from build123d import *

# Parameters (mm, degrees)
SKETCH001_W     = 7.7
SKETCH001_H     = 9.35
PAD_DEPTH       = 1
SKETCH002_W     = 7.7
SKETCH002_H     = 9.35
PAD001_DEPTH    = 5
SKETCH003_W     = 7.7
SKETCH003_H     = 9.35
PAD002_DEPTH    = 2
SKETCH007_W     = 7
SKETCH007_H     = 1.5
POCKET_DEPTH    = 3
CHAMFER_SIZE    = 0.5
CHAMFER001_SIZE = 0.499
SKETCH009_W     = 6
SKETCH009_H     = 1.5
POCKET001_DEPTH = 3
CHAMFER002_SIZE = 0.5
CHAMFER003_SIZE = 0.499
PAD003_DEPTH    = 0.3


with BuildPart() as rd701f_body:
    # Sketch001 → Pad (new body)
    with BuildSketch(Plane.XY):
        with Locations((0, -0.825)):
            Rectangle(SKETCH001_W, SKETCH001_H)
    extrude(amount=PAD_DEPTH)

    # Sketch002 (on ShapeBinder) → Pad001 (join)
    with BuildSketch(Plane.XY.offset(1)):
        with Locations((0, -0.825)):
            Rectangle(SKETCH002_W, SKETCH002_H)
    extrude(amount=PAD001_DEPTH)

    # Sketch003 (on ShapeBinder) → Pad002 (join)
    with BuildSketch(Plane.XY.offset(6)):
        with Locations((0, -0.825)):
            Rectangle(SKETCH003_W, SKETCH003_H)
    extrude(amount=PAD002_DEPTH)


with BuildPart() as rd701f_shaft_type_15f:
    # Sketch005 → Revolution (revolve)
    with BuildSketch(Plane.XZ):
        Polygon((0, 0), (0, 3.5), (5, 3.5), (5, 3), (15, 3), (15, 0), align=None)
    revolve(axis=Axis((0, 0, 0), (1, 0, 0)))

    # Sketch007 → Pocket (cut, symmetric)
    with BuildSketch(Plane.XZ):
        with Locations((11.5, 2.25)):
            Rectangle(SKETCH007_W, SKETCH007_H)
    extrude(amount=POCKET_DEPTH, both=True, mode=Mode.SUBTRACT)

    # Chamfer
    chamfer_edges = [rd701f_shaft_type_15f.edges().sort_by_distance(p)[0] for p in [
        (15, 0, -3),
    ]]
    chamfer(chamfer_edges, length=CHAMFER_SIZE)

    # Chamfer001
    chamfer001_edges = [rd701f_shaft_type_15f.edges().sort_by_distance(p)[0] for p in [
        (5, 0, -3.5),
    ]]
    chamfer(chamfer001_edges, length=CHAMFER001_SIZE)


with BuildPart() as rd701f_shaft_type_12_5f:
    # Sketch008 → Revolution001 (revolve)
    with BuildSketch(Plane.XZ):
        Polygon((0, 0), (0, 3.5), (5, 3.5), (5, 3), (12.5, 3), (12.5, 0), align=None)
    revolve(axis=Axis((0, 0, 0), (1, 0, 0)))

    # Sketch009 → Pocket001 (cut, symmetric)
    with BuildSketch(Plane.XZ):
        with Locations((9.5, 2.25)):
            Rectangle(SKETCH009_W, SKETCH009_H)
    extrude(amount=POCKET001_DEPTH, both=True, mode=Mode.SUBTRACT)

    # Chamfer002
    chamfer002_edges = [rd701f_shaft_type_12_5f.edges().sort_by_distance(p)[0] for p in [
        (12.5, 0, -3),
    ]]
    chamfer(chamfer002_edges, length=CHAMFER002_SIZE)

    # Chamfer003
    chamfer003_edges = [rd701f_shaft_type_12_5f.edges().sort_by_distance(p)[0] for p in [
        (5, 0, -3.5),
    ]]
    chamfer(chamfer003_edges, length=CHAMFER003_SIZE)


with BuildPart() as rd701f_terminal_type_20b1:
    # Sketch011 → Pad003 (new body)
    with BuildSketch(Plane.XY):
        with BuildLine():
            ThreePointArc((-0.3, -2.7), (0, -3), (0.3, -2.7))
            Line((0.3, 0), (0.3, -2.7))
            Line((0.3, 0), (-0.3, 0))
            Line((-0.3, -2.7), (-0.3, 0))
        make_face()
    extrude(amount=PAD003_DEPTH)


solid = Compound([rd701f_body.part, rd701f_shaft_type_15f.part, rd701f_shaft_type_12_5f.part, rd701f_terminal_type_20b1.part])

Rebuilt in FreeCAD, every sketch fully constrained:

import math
import FreeCAD as App
import Part
import Sketcher


def edges_at(feature, points):
    """Names of the edges that pass closest to the given points."""
    edges = feature.Shape.Edges
    near = lambda p: min(range(len(edges)), key=lambda i: edges[i].distToShape(Part.Vertex(*p))[0])
    return sorted({f"Edge{near(p) + 1}" for p in points})

doc = App.newDocument("Part")
body = doc.addObject("PartDesign::Body", "Body")

sketch1 = body.newObject("Sketcher::SketchObject", "Sketch")
sketch1.AttachmentSupport = (doc.getObject("XY_Plane"), [""])
sketch1.MapMode = "FlatFace"
sketch1.addGeometry(Part.LineSegment(App.Vector(-4, 4, 0), App.Vector(-4, -6, 0)), False)
sketch1.addGeometry(Part.LineSegment(App.Vector(-4, -6, 0), App.Vector(4, -6, 0)), False)
sketch1.addGeometry(Part.LineSegment(App.Vector(4, -6, 0), App.Vector(4, 4, 0)), False)
sketch1.addGeometry(Part.LineSegment(App.Vector(4, 4, 0), App.Vector(-4, 4, 0)), False)
sketch1.addConstraint(Sketcher.Constraint("Coincident", 0, 2, 1, 1))
sketch1.addConstraint(Sketcher.Constraint("Coincident", 1, 2, 2, 1))
sketch1.addConstraint(Sketcher.Constraint("Coincident", 2, 2, 3, 1))
sketch1.addConstraint(Sketcher.Constraint("Coincident", 3, 2, 0, 1))
sketch1.addConstraint(Sketcher.Constraint("Vertical", 0))
sketch1.addConstraint(Sketcher.Constraint("Horizontal", 1))
sketch1.addConstraint(Sketcher.Constraint("Vertical", 2))
sketch1.addConstraint(Sketcher.Constraint("Horizontal", 3))
sketch1.addConstraint(Sketcher.Constraint("DistanceX", 1, 1, 1, 2, 7.7))
sketch1.addConstraint(Sketcher.Constraint("DistanceY", 0, 2, 0, 1, 9.35))
sketch1.addConstraint(Sketcher.Constraint("DistanceY", 0, 2, -1, 1, 5.5))
sketch1.addConstraint(Sketcher.Constraint("DistanceX", 0, 2, -1, 1, 3.85))
pad1 = body.newObject("PartDesign::Pad", "Pad")
pad1.Profile = sketch1
pad1.Length = 1

sketch2 = body.newObject("Sketcher::SketchObject", "Sketch001")
sketch2.AttachmentSupport = (doc.getObject("XY_Plane"), [""])
sketch2.MapMode = "FlatFace"
sketch2.AttachmentOffset = App.Placement(App.Vector(0, 0, 1), App.Rotation())
sketch2.addGeometry(Part.LineSegment(App.Vector(-4, 4, 0), App.Vector(-4, -6, 0)), False)
sketch2.addGeometry(Part.LineSegment(App.Vector(-4, -6, 0), App.Vector(4, -6, 0)), False)
sketch2.addGeometry(Part.LineSegment(App.Vector(4, -6, 0), App.Vector(4, 4, 0)), False)
sketch2.addGeometry(Part.LineSegment(App.Vector(4, 4, 0), App.Vector(-4, 4, 0)), False)
sketch2.addConstraint(Sketcher.Constraint("Coincident", 0, 2, 1, 1))
sketch2.addConstraint(Sketcher.Constraint("Coincident", 1, 2, 2, 1))
sketch2.addConstraint(Sketcher.Constraint("Coincident", 2, 2, 3, 1))
sketch2.addConstraint(Sketcher.Constraint("Coincident", 3, 2, 0, 1))
sketch2.addConstraint(Sketcher.Constraint("Vertical", 0))
sketch2.addConstraint(Sketcher.Constraint("Horizontal", 1))
sketch2.addConstraint(Sketcher.Constraint("Vertical", 2))
sketch2.addConstraint(Sketcher.Constraint("Horizontal", 3))
sketch2.addConstraint(Sketcher.Constraint("DistanceX", 1, 1, 1, 2, 7.7))
sketch2.addConstraint(Sketcher.Constraint("DistanceY", 0, 2, 0, 1, 9.35))
sketch2.addConstraint(Sketcher.Constraint("DistanceY", 0, 2, -1, 1, 5.5))
sketch2.addConstraint(Sketcher.Constraint("DistanceX", 0, 2, -1, 1, 3.85))
pad2 = body.newObject("PartDesign::Pad", "Pad001")
pad2.Profile = sketch2
pad2.Length = 5

sketch3 = body.newObject("Sketcher::SketchObject", "Sketch002")
sketch3.AttachmentSupport = (doc.getObject("XY_Plane"), [""])
sketch3.MapMode = "FlatFace"
sketch3.AttachmentOffset = App.Placement(App.Vector(0, 0, 6), App.Rotation())
sketch3.addGeometry(Part.LineSegment(App.Vector(-4, 4, 0), App.Vector(-4, -6, 0)), False)
sketch3.addGeometry(Part.LineSegment(App.Vector(-4, -6, 0), App.Vector(4, -6, 0)), False)
sketch3.addGeometry(Part.LineSegment(App.Vector(4, -6, 0), App.Vector(4, 4, 0)), False)
sketch3.addGeometry(Part.LineSegment(App.Vector(4, 4, 0), App.Vector(-4, 4, 0)), False)
sketch3.addConstraint(Sketcher.Constraint("Coincident", 0, 2, 1, 1))
sketch3.addConstraint(Sketcher.Constraint("Coincident", 1, 2, 2, 1))
sketch3.addConstraint(Sketcher.Constraint("Coincident", 2, 2, 3, 1))
sketch3.addConstraint(Sketcher.Constraint("Coincident", 3, 2, 0, 1))
sketch3.addConstraint(Sketcher.Constraint("Vertical", 0))
sketch3.addConstraint(Sketcher.Constraint("Horizontal", 1))
sketch3.addConstraint(Sketcher.Constraint("Vertical", 2))
sketch3.addConstraint(Sketcher.Constraint("Horizontal", 3))
sketch3.addConstraint(Sketcher.Constraint("DistanceX", 1, 1, 1, 2, 7.7))
sketch3.addConstraint(Sketcher.Constraint("DistanceY", 0, 2, 0, 1, 9.35))
sketch3.addConstraint(Sketcher.Constraint("DistanceY", 0, 2, -1, 1, 5.5))
sketch3.addConstraint(Sketcher.Constraint("DistanceX", 0, 2, -1, 1, 3.85))
pad3 = body.newObject("PartDesign::Pad", "Pad002")
pad3.Profile = sketch3
pad3.Length = 2
body2 = doc.addObject("PartDesign::Body", "Body001")

sketch4 = body2.newObject("Sketcher::SketchObject", "Sketch003")
sketch4.AttachmentSupport = (doc.getObject("XZ_Plane001"), [""])
sketch4.MapMode = "FlatFace"
sketch4.addGeometry(Part.LineSegment(App.Vector(0, 3.5, 0), App.Vector(0, 0, 0)), False)
sketch4.addGeometry(Part.LineSegment(App.Vector(0, 0, 0), App.Vector(15, 0, 0)), False)
sketch4.addGeometry(Part.LineSegment(App.Vector(15, 0, 0), App.Vector(15, 3, 0)), False)
sketch4.addGeometry(Part.LineSegment(App.Vector(15, 3, 0), App.Vector(5, 3, 0)), False)
sketch4.addGeometry(Part.LineSegment(App.Vector(5, 3, 0), App.Vector(5, 3.5, 0)), False)
sketch4.addGeometry(Part.LineSegment(App.Vector(5, 3.5, 0), App.Vector(0, 3.5, 0)), False)
sketch4.addConstraint(Sketcher.Constraint("Coincident", 0, 2, 1, 1))
sketch4.addConstraint(Sketcher.Constraint("Coincident", 1, 2, 2, 1))
sketch4.addConstraint(Sketcher.Constraint("Coincident", 2, 2, 3, 1))
sketch4.addConstraint(Sketcher.Constraint("Coincident", 3, 2, 4, 1))
sketch4.addConstraint(Sketcher.Constraint("Coincident", 4, 2, 5, 1))
sketch4.addConstraint(Sketcher.Constraint("Coincident", 5, 2, 0, 1))
sketch4.addConstraint(Sketcher.Constraint("Vertical", 0))
sketch4.addConstraint(Sketcher.Constraint("Horizontal", 1))
sketch4.addConstraint(Sketcher.Constraint("Vertical", 2))
sketch4.addConstraint(Sketcher.Constraint("Horizontal", 3))
sketch4.addConstraint(Sketcher.Constraint("Vertical", 4))
sketch4.addConstraint(Sketcher.Constraint("Horizontal", 5))
sketch4.addConstraint(Sketcher.Constraint("Coincident", 0, 2, -1, 1))
sketch4.addConstraint(Sketcher.Constraint("DistanceX", 1, 1, 1, 2, 15.0))
sketch4.addConstraint(Sketcher.Constraint("DistanceX", 3, 2, 3, 1, 10.0))
sketch4.addConstraint(Sketcher.Constraint("DistanceY", 2, 1, 2, 2, 3.0))
sketch4.addConstraint(Sketcher.Constraint("DistanceY", 0, 2, 0, 1, 3.5))
revolution = body2.newObject("PartDesign::Revolution", "Revolution")
revolution.Profile = sketch4
revolution.ReferenceAxis = (sketch4, ["H_Axis"])
revolution.Angle = 360

sketch5 = body2.newObject("Sketcher::SketchObject", "Sketch004")
sketch5.AttachmentSupport = (doc.getObject("XZ_Plane001"), [""])
sketch5.MapMode = "FlatFace"
sketch5.addGeometry(Part.LineSegment(App.Vector(8, 3, 0), App.Vector(8, 1.5, 0)), False)
sketch5.addGeometry(Part.LineSegment(App.Vector(8, 1.5, 0), App.Vector(15, 1.5, 0)), False)
sketch5.addGeometry(Part.LineSegment(App.Vector(15, 1.5, 0), App.Vector(15, 3, 0)), False)
sketch5.addGeometry(Part.LineSegment(App.Vector(15, 3, 0), App.Vector(8, 3, 0)), False)
sketch5.addConstraint(Sketcher.Constraint("Coincident", 0, 2, 1, 1))
sketch5.addConstraint(Sketcher.Constraint("Coincident", 1, 2, 2, 1))
sketch5.addConstraint(Sketcher.Constraint("Coincident", 2, 2, 3, 1))
sketch5.addConstraint(Sketcher.Constraint("Coincident", 3, 2, 0, 1))
sketch5.addConstraint(Sketcher.Constraint("Vertical", 0))
sketch5.addConstraint(Sketcher.Constraint("Horizontal", 1))
sketch5.addConstraint(Sketcher.Constraint("Vertical", 2))
sketch5.addConstraint(Sketcher.Constraint("Horizontal", 3))
sketch5.addConstraint(Sketcher.Constraint("DistanceX", 1, 1, 1, 2, 7.0))
sketch5.addConstraint(Sketcher.Constraint("DistanceY", 0, 2, 0, 1, 1.5))
sketch5.addConstraint(Sketcher.Constraint("DistanceX", -1, 1, 0, 2, 8.0))
sketch5.addConstraint(Sketcher.Constraint("DistanceY", -1, 1, 2, 2, 3.0))
pocket1 = body2.newObject("PartDesign::Pocket", "Pocket")
pocket1.Profile = sketch5
pocket1.Length = 6
pocket1.Midplane = True
doc.recompute()

chamfer = body2.newObject("PartDesign::Chamfer", "Chamfer")
chamfer.Base = (pocket1, edges_at(pocket1, [(15, 0, -3)]))
chamfer.Size = 0.5
doc.recompute()

chamfer2 = body2.newObject("PartDesign::Chamfer", "Chamfer001")
chamfer2.Base = (chamfer, edges_at(chamfer, [(5, 0, -3.5)]))
chamfer2.Size = 0.499
body3 = doc.addObject("PartDesign::Body", "Body002")

sketch6 = body3.newObject("Sketcher::SketchObject", "Sketch005")
sketch6.AttachmentSupport = (doc.getObject("XZ_Plane002"), [""])
sketch6.MapMode = "FlatFace"
sketch6.addGeometry(Part.LineSegment(App.Vector(0, 3.5, 0), App.Vector(0, 0, 0)), False)
sketch6.addGeometry(Part.LineSegment(App.Vector(0, 0, 0), App.Vector(12.5, 0, 0)), False)
sketch6.addGeometry(Part.LineSegment(App.Vector(12.5, 0, 0), App.Vector(12.5, 3, 0)), False)
sketch6.addGeometry(Part.LineSegment(App.Vector(12.5, 3, 0), App.Vector(5, 3, 0)), False)
sketch6.addGeometry(Part.LineSegment(App.Vector(5, 3, 0), App.Vector(5, 3.5, 0)), False)
sketch6.addGeometry(Part.LineSegment(App.Vector(5, 3.5, 0), App.Vector(0, 3.5, 0)), False)
sketch6.addConstraint(Sketcher.Constraint("Coincident", 0, 2, 1, 1))
sketch6.addConstraint(Sketcher.Constraint("Coincident", 1, 2, 2, 1))
sketch6.addConstraint(Sketcher.Constraint("Coincident", 2, 2, 3, 1))
sketch6.addConstraint(Sketcher.Constraint("Coincident", 3, 2, 4, 1))
sketch6.addConstraint(Sketcher.Constraint("Coincident", 4, 2, 5, 1))
sketch6.addConstraint(Sketcher.Constraint("Coincident", 5, 2, 0, 1))
sketch6.addConstraint(Sketcher.Constraint("Vertical", 0))
sketch6.addConstraint(Sketcher.Constraint("Horizontal", 1))
sketch6.addConstraint(Sketcher.Constraint("Vertical", 2))
sketch6.addConstraint(Sketcher.Constraint("Horizontal", 3))
sketch6.addConstraint(Sketcher.Constraint("Vertical", 4))
sketch6.addConstraint(Sketcher.Constraint("Horizontal", 5))
sketch6.addConstraint(Sketcher.Constraint("Coincident", 0, 2, -1, 1))
sketch6.addConstraint(Sketcher.Constraint("DistanceX", 5, 2, 5, 1, 5.0))
sketch6.addConstraint(Sketcher.Constraint("DistanceY", 2, 1, 2, 2, 3.0))
sketch6.addConstraint(Sketcher.Constraint("DistanceX", 1, 1, 1, 2, 12.5))
sketch6.addConstraint(Sketcher.Constraint("DistanceY", 0, 2, 0, 1, 3.5))
revolution2 = body3.newObject("PartDesign::Revolution", "Revolution001")
revolution2.Profile = sketch6
revolution2.ReferenceAxis = (sketch6, ["H_Axis"])
revolution2.Angle = 360

sketch7 = body3.newObject("Sketcher::SketchObject", "Sketch006")
sketch7.AttachmentSupport = (doc.getObject("XZ_Plane002"), [""])
sketch7.MapMode = "FlatFace"
sketch7.addGeometry(Part.LineSegment(App.Vector(6.5, 3, 0), App.Vector(6.5, 1.5, 0)), False)
sketch7.addGeometry(Part.LineSegment(App.Vector(6.5, 1.5, 0), App.Vector(12.5, 1.5, 0)), False)
sketch7.addGeometry(Part.LineSegment(App.Vector(12.5, 1.5, 0), App.Vector(12.5, 3, 0)), False)
sketch7.addGeometry(Part.LineSegment(App.Vector(12.5, 3, 0), App.Vector(6.5, 3, 0)), False)
sketch7.addConstraint(Sketcher.Constraint("Coincident", 0, 2, 1, 1))
sketch7.addConstraint(Sketcher.Constraint("Coincident", 1, 2, 2, 1))
sketch7.addConstraint(Sketcher.Constraint("Coincident", 2, 2, 3, 1))
sketch7.addConstraint(Sketcher.Constraint("Coincident", 3, 2, 0, 1))
sketch7.addConstraint(Sketcher.Constraint("Vertical", 0))
sketch7.addConstraint(Sketcher.Constraint("Horizontal", 1))
sketch7.addConstraint(Sketcher.Constraint("Vertical", 2))
sketch7.addConstraint(Sketcher.Constraint("Horizontal", 3))
sketch7.addConstraint(Sketcher.Constraint("DistanceX", 1, 1, 1, 2, 6.0))
sketch7.addConstraint(Sketcher.Constraint("DistanceY", 0, 2, 0, 1, 1.5))
sketch7.addConstraint(Sketcher.Constraint("DistanceY", -1, 1, 2, 2, 3.0))
sketch7.addConstraint(Sketcher.Constraint("DistanceX", -1, 1, 0, 2, 6.5))
pocket2 = body3.newObject("PartDesign::Pocket", "Pocket001")
pocket2.Profile = sketch7
pocket2.Length = 6
pocket2.Midplane = True
doc.recompute()

chamfer3 = body3.newObject("PartDesign::Chamfer", "Chamfer002")
chamfer3.Base = (pocket2, edges_at(pocket2, [(12.5, 0, -3)]))
chamfer3.Size = 0.5
doc.recompute()

chamfer4 = body3.newObject("PartDesign::Chamfer", "Chamfer003")
chamfer4.Base = (chamfer3, edges_at(chamfer3, [(5, 0, -3.5)]))
chamfer4.Size = 0.499
body4 = doc.addObject("PartDesign::Body", "Body003")

sketch8 = body4.newObject("Sketcher::SketchObject", "Sketch007")
sketch8.AttachmentSupport = (doc.getObject("XY_Plane003"), [""])
sketch8.MapMode = "FlatFace"
sketch8.addGeometry(Part.ArcOfCircle(Part.Circle(App.Vector(0, -2.7, 0), App.Vector(0, 0, 1), 0.3), math.radians(180), math.radians(360)), False)
sketch8.addGeometry(Part.LineSegment(App.Vector(0.3, -2.7, 0), App.Vector(0.3, 0, 0)), False)
sketch8.addGeometry(Part.LineSegment(App.Vector(0.3, 0, 0), App.Vector(-0.3, 0, 0)), False)
sketch8.addGeometry(Part.LineSegment(App.Vector(-0.3, 0, 0), App.Vector(-0.3, -2.7, 0)), False)
sketch8.addConstraint(Sketcher.Constraint("Tangent", 0, 2, 1, 1))
sketch8.addConstraint(Sketcher.Constraint("Coincident", 1, 2, 2, 1))
sketch8.addConstraint(Sketcher.Constraint("Coincident", 2, 2, 3, 1))
sketch8.addConstraint(Sketcher.Constraint("Tangent", 3, 2, 0, 1))
sketch8.addConstraint(Sketcher.Constraint("Vertical", 1))
sketch8.addConstraint(Sketcher.Constraint("Horizontal", 2))
sketch8.addConstraint(Sketcher.Constraint("Vertical", 3))
sketch8.addConstraint(Sketcher.Constraint("Symmetric", 1, 2, 2, 2, -1, 1))
sketch8.addConstraint(Sketcher.Constraint("Radius", 0, 0.3))
sketch8.addConstraint(Sketcher.Constraint("DistanceY", 1, 1, 1, 2, 2.7))
pad4 = body4.newObject("PartDesign::Pad", "Pad003")
pad4.Profile = sketch8
pad4.Length = 0.3

doc.recompute()
